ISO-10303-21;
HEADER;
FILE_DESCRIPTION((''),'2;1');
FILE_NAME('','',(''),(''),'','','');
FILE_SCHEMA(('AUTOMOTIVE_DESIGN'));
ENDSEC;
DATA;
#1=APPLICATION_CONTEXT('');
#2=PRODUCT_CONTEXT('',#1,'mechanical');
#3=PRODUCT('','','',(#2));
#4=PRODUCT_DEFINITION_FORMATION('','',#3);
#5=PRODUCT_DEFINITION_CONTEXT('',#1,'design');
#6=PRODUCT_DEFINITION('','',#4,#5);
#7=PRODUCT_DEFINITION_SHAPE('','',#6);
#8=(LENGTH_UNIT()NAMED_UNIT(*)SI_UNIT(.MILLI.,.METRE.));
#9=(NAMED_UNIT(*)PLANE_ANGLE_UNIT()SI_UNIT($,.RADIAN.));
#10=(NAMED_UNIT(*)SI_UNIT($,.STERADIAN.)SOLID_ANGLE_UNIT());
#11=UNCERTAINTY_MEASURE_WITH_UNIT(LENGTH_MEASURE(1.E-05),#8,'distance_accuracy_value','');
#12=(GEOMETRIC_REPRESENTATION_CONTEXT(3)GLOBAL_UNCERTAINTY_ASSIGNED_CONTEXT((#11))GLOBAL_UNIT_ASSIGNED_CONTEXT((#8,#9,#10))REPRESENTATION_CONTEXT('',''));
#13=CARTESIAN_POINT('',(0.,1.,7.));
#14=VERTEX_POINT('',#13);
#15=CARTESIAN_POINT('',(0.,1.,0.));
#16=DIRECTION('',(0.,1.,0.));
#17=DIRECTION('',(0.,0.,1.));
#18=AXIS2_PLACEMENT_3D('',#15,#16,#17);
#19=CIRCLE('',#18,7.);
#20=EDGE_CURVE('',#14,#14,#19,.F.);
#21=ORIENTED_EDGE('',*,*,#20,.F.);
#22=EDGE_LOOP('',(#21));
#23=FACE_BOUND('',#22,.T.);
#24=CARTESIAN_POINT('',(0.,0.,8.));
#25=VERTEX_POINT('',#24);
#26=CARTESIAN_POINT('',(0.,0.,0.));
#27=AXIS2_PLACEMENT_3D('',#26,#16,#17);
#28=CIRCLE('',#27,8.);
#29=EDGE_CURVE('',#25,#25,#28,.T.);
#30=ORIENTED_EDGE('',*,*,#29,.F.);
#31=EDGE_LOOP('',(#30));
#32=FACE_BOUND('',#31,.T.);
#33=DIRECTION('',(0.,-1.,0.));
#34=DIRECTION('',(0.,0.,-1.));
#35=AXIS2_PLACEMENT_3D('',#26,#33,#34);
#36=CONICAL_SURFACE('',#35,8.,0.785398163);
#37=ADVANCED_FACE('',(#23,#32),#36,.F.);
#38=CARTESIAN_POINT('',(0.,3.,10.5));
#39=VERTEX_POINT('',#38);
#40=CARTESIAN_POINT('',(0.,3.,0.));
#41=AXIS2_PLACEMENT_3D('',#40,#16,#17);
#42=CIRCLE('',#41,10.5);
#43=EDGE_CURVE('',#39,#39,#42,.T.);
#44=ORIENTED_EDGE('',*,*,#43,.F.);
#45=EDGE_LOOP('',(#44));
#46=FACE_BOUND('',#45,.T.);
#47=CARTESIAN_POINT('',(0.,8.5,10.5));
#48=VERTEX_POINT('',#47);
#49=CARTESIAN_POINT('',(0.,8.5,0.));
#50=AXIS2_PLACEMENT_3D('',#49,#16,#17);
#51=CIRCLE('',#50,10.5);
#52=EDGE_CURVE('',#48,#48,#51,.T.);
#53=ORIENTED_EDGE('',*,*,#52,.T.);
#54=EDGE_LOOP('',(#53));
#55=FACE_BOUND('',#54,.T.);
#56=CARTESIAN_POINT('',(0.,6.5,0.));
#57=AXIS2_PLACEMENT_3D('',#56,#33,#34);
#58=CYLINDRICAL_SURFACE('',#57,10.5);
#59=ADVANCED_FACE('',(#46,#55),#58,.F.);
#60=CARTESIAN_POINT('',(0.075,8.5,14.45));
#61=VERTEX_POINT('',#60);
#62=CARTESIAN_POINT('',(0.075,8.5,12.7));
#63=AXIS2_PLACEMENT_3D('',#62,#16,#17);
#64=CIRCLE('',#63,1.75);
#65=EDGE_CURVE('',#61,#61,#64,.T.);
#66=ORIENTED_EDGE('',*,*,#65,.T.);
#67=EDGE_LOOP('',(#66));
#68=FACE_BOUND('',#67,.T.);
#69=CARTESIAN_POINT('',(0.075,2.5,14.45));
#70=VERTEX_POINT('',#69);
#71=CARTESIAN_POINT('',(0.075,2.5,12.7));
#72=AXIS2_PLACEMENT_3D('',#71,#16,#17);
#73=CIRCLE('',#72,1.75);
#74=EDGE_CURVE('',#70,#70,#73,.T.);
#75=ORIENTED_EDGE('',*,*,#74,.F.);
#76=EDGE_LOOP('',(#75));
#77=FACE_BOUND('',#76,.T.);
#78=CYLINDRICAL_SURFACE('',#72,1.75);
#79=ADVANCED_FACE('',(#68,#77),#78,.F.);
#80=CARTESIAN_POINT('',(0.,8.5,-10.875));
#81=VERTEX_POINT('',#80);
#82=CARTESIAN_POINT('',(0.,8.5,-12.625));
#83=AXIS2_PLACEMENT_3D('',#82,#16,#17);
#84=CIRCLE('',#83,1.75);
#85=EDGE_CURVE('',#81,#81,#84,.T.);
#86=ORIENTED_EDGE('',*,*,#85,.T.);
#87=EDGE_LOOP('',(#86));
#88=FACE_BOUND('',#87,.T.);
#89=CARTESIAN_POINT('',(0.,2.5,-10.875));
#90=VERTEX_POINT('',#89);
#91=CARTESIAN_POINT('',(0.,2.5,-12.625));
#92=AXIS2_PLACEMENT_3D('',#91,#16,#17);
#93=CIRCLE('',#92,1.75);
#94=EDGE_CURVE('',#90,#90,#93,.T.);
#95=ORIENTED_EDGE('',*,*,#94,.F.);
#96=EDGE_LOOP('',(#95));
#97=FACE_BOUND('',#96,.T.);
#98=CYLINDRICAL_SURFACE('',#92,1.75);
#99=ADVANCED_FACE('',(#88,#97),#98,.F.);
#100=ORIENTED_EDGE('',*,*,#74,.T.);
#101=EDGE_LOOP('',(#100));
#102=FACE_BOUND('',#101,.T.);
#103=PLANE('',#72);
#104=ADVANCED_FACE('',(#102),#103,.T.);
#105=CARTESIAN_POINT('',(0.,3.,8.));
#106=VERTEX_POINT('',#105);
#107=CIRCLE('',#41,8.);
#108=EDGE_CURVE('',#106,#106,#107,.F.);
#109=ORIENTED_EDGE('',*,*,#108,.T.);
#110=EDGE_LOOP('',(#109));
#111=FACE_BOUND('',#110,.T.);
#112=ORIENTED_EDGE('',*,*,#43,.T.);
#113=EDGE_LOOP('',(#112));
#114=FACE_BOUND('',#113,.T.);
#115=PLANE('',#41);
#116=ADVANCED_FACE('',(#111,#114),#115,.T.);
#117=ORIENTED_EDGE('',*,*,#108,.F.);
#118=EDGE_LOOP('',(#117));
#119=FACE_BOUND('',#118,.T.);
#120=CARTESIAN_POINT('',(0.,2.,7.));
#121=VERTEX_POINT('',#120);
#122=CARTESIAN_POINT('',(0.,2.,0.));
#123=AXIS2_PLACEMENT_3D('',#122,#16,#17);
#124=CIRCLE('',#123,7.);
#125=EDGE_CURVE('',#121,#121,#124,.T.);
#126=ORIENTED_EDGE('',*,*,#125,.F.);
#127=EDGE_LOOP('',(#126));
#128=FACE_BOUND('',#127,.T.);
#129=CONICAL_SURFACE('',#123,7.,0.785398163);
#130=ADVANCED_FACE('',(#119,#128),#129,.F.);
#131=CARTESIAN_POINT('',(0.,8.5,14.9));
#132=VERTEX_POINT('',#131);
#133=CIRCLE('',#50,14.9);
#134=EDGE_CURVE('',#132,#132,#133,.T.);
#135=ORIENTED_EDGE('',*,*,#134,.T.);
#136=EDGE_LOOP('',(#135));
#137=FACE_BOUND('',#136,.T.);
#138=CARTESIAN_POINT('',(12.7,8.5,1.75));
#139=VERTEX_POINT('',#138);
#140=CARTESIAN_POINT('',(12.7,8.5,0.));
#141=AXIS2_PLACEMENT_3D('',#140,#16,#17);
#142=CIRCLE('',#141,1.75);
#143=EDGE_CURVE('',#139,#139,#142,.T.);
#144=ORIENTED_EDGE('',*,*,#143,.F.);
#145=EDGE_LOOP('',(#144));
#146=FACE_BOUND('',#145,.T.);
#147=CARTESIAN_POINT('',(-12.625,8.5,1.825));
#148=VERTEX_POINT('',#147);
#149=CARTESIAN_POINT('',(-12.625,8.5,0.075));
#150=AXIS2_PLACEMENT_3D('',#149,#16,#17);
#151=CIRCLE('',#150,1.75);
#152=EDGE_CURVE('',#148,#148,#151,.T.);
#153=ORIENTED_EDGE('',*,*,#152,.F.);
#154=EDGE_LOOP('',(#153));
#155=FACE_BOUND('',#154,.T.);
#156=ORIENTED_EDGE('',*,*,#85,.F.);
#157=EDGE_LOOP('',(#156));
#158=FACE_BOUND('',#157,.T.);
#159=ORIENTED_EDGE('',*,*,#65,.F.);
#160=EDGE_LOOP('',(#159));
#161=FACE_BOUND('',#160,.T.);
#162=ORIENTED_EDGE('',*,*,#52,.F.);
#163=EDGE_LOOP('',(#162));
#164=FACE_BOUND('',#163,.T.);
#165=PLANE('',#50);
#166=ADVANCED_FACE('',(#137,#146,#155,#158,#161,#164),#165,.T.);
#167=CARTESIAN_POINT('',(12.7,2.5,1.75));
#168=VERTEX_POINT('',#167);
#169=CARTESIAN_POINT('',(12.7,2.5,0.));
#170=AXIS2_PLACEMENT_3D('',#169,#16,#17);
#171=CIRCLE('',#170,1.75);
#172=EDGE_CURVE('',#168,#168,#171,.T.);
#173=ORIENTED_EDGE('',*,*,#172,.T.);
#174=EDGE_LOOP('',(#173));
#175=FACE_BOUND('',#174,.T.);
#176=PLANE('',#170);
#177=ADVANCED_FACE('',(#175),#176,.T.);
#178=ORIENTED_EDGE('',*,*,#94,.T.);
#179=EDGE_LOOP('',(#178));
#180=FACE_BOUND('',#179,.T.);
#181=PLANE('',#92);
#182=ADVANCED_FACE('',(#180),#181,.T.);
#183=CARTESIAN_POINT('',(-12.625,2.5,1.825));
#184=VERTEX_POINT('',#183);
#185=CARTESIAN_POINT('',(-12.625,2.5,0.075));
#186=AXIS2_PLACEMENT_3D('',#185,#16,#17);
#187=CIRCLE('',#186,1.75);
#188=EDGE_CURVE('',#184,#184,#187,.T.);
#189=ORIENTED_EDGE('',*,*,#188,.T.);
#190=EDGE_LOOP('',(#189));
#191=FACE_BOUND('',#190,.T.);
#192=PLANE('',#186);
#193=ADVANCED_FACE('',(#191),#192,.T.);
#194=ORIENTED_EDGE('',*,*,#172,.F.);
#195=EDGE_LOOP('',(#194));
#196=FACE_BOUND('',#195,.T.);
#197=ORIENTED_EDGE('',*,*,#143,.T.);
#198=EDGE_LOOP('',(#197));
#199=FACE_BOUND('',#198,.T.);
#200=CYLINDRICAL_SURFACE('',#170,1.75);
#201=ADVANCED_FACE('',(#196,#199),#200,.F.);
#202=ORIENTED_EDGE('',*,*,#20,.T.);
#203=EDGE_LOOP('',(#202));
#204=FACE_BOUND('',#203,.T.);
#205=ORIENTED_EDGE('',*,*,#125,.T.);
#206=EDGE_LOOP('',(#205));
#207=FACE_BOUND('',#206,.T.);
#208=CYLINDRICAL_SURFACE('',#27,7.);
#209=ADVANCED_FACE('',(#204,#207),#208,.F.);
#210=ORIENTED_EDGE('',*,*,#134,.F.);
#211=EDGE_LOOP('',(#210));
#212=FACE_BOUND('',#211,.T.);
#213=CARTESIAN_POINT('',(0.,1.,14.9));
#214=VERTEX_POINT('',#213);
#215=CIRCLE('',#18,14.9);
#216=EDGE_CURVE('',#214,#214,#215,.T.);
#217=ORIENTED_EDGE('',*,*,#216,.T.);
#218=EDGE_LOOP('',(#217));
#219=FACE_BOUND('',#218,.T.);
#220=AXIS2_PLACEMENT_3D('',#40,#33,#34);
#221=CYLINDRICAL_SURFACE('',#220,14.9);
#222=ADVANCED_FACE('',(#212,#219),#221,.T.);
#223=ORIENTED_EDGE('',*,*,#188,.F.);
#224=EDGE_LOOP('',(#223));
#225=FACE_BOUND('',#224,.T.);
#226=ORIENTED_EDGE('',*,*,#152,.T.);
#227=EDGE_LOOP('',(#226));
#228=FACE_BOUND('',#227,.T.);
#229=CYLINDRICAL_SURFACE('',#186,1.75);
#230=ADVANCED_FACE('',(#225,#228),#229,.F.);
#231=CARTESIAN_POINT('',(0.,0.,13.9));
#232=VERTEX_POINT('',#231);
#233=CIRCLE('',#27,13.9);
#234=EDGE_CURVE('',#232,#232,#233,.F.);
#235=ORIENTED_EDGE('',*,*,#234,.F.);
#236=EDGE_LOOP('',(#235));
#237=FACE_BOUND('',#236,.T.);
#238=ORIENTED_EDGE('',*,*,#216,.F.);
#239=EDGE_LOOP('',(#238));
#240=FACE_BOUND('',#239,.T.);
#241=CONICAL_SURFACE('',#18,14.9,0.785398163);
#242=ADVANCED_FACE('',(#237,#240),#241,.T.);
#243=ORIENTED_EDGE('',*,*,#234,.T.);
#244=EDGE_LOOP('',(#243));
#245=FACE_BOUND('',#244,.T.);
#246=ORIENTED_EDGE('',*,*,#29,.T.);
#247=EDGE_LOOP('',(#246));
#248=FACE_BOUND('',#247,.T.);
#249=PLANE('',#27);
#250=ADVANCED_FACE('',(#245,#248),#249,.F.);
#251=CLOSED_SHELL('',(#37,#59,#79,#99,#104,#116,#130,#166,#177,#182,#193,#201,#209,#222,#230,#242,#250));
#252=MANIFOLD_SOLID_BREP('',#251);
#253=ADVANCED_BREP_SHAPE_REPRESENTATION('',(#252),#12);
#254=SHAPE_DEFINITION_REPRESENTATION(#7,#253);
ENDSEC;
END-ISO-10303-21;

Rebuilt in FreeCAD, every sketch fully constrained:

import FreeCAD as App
import Part
import Sketcher
from FreeCAD import Vector
Q = App.Units.Quantity


def edges_at(feature, points):
    """Names of the edges that pass closest to the given points."""
    edges = feature.Shape.Edges
    near = lambda p: min(range(len(edges)), key=lambda i: edges[i].distToShape(Part.Vertex(*p))[0])
    return sorted({f"Edge{near(p) + 1}" for p in points})

doc = App.newDocument("Part")
body = doc.addObject("PartDesign::Body", "Body")

# Sketch on XZ plane
sketch1 = doc.addObject("Sketcher::SketchObject", "Sketch")
body.addObject(sketch1)
sketch1.AttachmentSupport = (doc.XZ_Plane, [""])
sketch1.MapMode = "FlatFace"
sketch1.addGeometry(Part.Circle(Vector(0, 0, 0), Vector(0, 0, 1), 15), False)
sketch1.addConstraint([
    Sketcher.Constraint("Coincident", 0, 3, -1, 1),
    Sketcher.Constraint("Diameter", 0, Q("29.8 mm")),
])
pad1 = doc.addObject("PartDesign::Pad", "Pad")
body.addObject(pad1)
pad1.Profile = sketch1
pad1.Length = 3
pad1.Reversed = True

# Sketch on XZ plane
sketch2 = doc.addObject("Sketcher::SketchObject", "Sketch001")
body.addObject(sketch2)
sketch2.AttachmentSupport = (doc.XZ_Plane, [""])
sketch2.MapMode = "FlatFace"
sketch2.AttachmentOffset = App.Placement(Vector(0, 0, -3), App.Rotation())
sketch2.addGeometry(Part.Circle(Vector(0, 0, 0), Vector(0, 0, 1), 7), False)
sketch2.addConstraint([
    Sketcher.Constraint("Coincident", 0, 3, -1, 1),
    Sketcher.Constraint("Diameter", 0, Q("14 mm")),
])
pocket1 = doc.addObject("PartDesign::Pocket", "Pocket")
body.addObject(pocket1)
pocket1.Profile = sketch2
pocket1.Type = "ThroughAll"
pocket1.Reversed = True

# Sketch on XZ plane
sketch3 = doc.addObject("Sketcher::SketchObject", "Sketch002")
body.addObject(sketch3)
sketch3.AttachmentSupport = (doc.XZ_Plane, [""])
sketch3.MapMode = "FlatFace"
sketch3.AttachmentOffset = App.Placement(Vector(0, 0, -3), App.Rotation())
sketch3.addGeometry([
    Part.Circle(Vector(0, 0, 0), Vector(0, 0, 1), 15),
    Part.Circle(Vector(0, 0, 0), Vector(0, 0, 1), 10),
], False)
sketch3.addConstraint([
    Sketcher.Constraint("Coincident", 0, 3, -1, 1),
    Sketcher.Constraint("Coincident", 1, 3, -1, 1),
    Sketcher.Constraint("Diameter", 1, Q("21 mm")),
    Sketcher.Constraint("Diameter", 0, Q("29.8 mm")),
])
pad2 = doc.addObject("PartDesign::Pad", "Pad001")
body.addObject(pad2)
pad2.Profile = sketch3
pad2.Length = 3.5
pad2.Reversed = True
doc.recompute()

chamfer = doc.addObject("PartDesign::Chamfer", "Chamfer")
body.addObject(chamfer)
chamfer.Base = (pad2, edges_at(pad2, [(0, 0, -14.9), (0, 0, -7), (0, 3, -7)]))
chamfer.Size = 1

# Sketch on XZ plane
sketch4 = doc.addObject("Sketcher::SketchObject", "Sketch003")
body.addObject(sketch4)
sketch4.AttachmentSupport = (doc.XZ_Plane, [""])
sketch4.MapMode = "FlatFace"
sketch4.AttachmentOffset = App.Placement(Vector(0, 0, -6.5), App.Rotation())
sketch4.addGeometry([
    Part.Circle(Vector(12.7, 0, 0), Vector(0, 0, 1), 1.8),
    Part.Circle(Vector(0.1, 12.7, 0), Vector(0, 0, 1), 1.8),
    Part.Circle(Vector(-12.6, 0.1, 0), Vector(0, 0, 1), 1.8),
    Part.Circle(Vector(0, -12.6, 0), Vector(0, 0, 1), 1.8),
], False)
sketch4.addConstraint([
    Sketcher.Constraint("Equal", 0, 1),
    Sketcher.Constraint("Equal", 1, 2),
    Sketcher.Constraint("Equal", 2, 3),
    Sketcher.Constraint("PointOnObject", 0, 3, -1),
    Sketcher.Constraint("PointOnObject", 3, 3, -2),
    Sketcher.Constraint("Diameter", 0, Q("3.5 mm")),
    Sketcher.Constraint("DistanceX", -1, 1, 0, 3, Q("12.7 mm")),
    Sketcher.Constraint("DistanceY", -1, 1, 1, 3, Q("12.7 mm")),
    Sketcher.Constraint("DistanceX", 2, 3, 1, 3, Q("12.7 mm")),
    Sketcher.Constraint("DistanceY", 3, 3, 2, 3, Q("12.7 mm")),
    Sketcher.Constraint("DistanceX", -1, 1, 1, 3, Q("0.075 mm")),
    Sketcher.Constraint("DistanceY", -1, 1, 2, 3, Q("0.075 mm")),
])
pocket2 = doc.addObject("PartDesign::Pocket", "Pocket001")
body.addObject(pocket2)
pocket2.Profile = sketch4
pocket2.Length = 4
pocket2.Reversed = True

# Sketch on XZ plane
sketch5 = doc.addObject("Sketcher::SketchObject", "Sketch004")
body.addObject(sketch5)
sketch5.AttachmentSupport = (doc.XZ_Plane, [""])
sketch5.MapMode = "FlatFace"
sketch5.AttachmentOffset = App.Placement(Vector(0, 0, -8.5), App.Rotation())
sketch5.addGeometry([
    Part.Circle(Vector(0, 0, 0), Vector(0, 0, 1), 14.9),  # 0
    Part.Circle(Vector(0, -12.6, 0), Vector(0, 0, 1), 1.8),  # 1
    Part.Circle(Vector(0, 0, 0), Vector(0, 0, 1), 10.5),  # 2
    Part.Circle(Vector(-12.6, 0.1, 0), Vector(0, 0, 1), 1.8),  # 3
    Part.Circle(Vector(12.7, 0, 0), Vector(0, 0, 1), 1.8),  # 4
    Part.Circle(Vector(0.1, 12.7, 0), Vector(0, 0, 1), 1.8),  # 5
], False)
sketch5.addConstraint([
    Sketcher.Constraint("Coincident", 0, 3, -1, 1),
    Sketcher.Constraint("Coincident", 2, 3, -1, 1),
    Sketcher.Constraint("Equal", 1, 3),
    Sketcher.Constraint("Equal", 3, 4),
    Sketcher.Constraint("Equal", 4, 5),
    Sketcher.Constraint("PointOnObject", 1, 3, -2),
    Sketcher.Constraint("PointOnObject", 4, 3, -1),
    Sketcher.Constraint("Diameter", 2, Q("21 mm")),
    Sketcher.Constraint("Diameter", 0, Q("29.8 mm")),
    Sketcher.Constraint("Diameter", 1, Q("3.5 mm")),
    Sketcher.Constraint("DistanceX", -1, 1, 4, 3, Q("12.7 mm")),
    Sketcher.Constraint("DistanceY", -1, 1, 5, 3, Q("12.7 mm")),
    Sketcher.Constraint("DistanceY", 1, 3, 3, 3, Q("12.7 mm")),
    Sketcher.Constraint("DistanceX", 3, 3, 5, 3, Q("12.7 mm")),
    Sketcher.Constraint("DistanceY", 1, 3, -1, 1, Q("12.625 mm")),
    Sketcher.Constraint("DistanceX", 3, 3, -1, 1, Q("12.625 mm")),
])
pad3 = doc.addObject("PartDesign::Pad", "Pad002")
body.addObject(pad3)
pad3.Profile = sketch5
pad3.Length = 2

doc.recompute()
